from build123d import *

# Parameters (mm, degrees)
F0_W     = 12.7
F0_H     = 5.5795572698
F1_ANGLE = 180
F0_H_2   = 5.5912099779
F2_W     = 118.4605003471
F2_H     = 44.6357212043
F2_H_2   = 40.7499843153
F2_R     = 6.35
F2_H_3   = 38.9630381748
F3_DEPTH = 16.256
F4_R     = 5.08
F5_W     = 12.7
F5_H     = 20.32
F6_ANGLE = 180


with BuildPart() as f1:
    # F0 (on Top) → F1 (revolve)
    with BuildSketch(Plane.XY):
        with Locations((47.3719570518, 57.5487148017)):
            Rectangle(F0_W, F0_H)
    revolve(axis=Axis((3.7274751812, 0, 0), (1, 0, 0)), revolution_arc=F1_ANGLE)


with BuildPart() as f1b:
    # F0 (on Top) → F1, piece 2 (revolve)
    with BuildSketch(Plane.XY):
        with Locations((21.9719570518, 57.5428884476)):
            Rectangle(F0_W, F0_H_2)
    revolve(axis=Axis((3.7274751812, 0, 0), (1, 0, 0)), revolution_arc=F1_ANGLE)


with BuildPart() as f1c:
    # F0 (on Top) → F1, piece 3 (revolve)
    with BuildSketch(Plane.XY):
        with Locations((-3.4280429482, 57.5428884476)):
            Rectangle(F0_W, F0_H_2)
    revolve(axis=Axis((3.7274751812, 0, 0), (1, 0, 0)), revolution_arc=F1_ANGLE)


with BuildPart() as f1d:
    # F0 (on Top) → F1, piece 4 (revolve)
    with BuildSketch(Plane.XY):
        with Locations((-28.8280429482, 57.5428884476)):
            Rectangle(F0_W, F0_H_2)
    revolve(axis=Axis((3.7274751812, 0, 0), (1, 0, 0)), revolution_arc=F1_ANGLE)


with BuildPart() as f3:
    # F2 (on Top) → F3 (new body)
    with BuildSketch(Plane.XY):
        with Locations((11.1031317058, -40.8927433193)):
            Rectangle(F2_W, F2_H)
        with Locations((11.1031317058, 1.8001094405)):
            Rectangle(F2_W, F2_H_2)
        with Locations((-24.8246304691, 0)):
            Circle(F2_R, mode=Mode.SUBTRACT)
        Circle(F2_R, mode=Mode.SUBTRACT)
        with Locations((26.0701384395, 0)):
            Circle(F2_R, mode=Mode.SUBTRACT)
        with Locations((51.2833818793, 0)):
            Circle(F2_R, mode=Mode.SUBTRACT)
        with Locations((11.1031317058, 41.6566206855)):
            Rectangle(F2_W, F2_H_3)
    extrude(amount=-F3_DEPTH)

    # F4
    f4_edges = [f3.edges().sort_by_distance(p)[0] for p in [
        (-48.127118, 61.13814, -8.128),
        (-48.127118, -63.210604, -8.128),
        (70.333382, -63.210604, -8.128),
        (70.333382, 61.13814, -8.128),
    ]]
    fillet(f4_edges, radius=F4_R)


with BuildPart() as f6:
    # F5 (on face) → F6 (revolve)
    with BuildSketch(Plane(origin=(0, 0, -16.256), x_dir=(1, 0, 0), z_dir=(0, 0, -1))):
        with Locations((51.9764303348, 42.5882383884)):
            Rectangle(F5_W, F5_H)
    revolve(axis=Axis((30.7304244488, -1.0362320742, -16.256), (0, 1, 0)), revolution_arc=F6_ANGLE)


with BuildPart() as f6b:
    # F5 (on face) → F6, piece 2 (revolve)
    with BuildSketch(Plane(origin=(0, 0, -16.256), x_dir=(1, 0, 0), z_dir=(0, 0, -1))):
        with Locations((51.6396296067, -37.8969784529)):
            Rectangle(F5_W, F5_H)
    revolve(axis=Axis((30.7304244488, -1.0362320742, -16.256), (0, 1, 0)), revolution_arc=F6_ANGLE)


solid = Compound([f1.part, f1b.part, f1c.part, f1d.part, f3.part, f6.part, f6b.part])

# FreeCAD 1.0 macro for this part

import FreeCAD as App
import Part
import Sketcher
from FreeCAD import Vector
Q = App.Units.Quantity


def edges_at(feature, points):
    """Names of the edges that pass closest to the given points."""
    edges = feature.Shape.Edges
    near = lambda p: min(range(len(edges)), key=lambda i: edges[i].distToShape(Part.Vertex(*p))[0])
    return sorted({f"Edge{near(p) + 1}" for p in points})

doc = App.newDocument("Part")
body = doc.addObject("PartDesign::Body", "Body")

# Sketch on XY plane
sketch1 = body.newObject("Sketcher::SketchObject", "Sketch")
sketch1.AttachmentSupport = (doc.getObject("XY_Plane"), [""])
sketch1.MapMode = "FlatFace"
sketch1.addGeometry([
    Part.LineSegment(Vector(41, 60, 0), Vector(41, 55, 0)),
    Part.LineSegment(Vector(41, 55, 0), Vector(54, 55, 0)),
    Part.LineSegment(Vector(54, 55, 0), Vector(54, 60, 0)),
    Part.LineSegment(Vector(54, 60, 0), Vector(41, 60, 0)),
], False)
sketch1.addConstraint([
    Sketcher.Constraint("Coincident", 0, 2, 1, 1),
    Sketcher.Constraint("Coincident", 1, 2, 2, 1),
    Sketcher.Constraint("Coincident", 2, 2, 3, 1),
    Sketcher.Constraint("Coincident", 3, 2, 0, 1),
    Sketcher.Constraint("Vertical", 0),
    Sketcher.Constraint("Horizontal", 1),
    Sketcher.Constraint("Vertical", 2),
    Sketcher.Constraint("Horizontal", 3),
    Sketcher.Constraint("DistanceX", 1, 1, 1, 2, Q("0.5 in")),
    Sketcher.Constraint("DistanceY", 0, 2, 0, 1, Q("5.579557 mm")),
    Sketcher.Constraint("DistanceX", -1, 1, 0, 2, Q("41.021957 mm")),
    Sketcher.Constraint("DistanceY", -1, 1, 0, 2, Q("54.758936 mm")),
])
revolution = body.newObject("PartDesign::Revolution", "Revolution")
revolution.Profile = sketch1
revolution.ReferenceAxis = (sketch1, ["H_Axis"])
revolution.Angle = 180
body2 = doc.addObject("PartDesign::Body", "Body001")

# Sketch on XY plane
sketch2 = body2.newObject("Sketcher::SketchObject", "Sketch001")
sketch2.AttachmentSupport = (doc.getObject("XY_Plane001"), [""])
sketch2.MapMode = "FlatFace"
sketch2.addGeometry([
    Part.LineSegment(Vector(16, 60, 0), Vector(16, 55, 0)),
    Part.LineSegment(Vector(16, 55, 0), Vector(28, 55, 0)),
    Part.LineSegment(Vector(28, 55, 0), Vector(28, 60, 0)),
    Part.LineSegment(Vector(28, 60, 0), Vector(16, 60, 0)),
], False)
sketch2.addConstraint([
    Sketcher.Constraint("Coincident", 0, 2, 1, 1),
    Sketcher.Constraint("Coincident", 1, 2, 2, 1),
    Sketcher.Constraint("Coincident", 2, 2, 3, 1),
    Sketcher.Constraint("Coincident", 3, 2, 0, 1),
    Sketcher.Constraint("Vertical", 0),
    Sketcher.Constraint("Horizontal", 1),
    Sketcher.Constraint("Vertical", 2),
    Sketcher.Constraint("Horizontal", 3),
    Sketcher.Constraint("DistanceX", 1, 1, 1, 2, Q("0.5 in")),
    Sketcher.Constraint("DistanceY", 0, 2, 0, 1, Q("5.59121 mm")),
    Sketcher.Constraint("DistanceX", -1, 1, 0, 2, Q("15.621957 mm")),
    Sketcher.Constraint("DistanceY", -1, 1, 0, 2, Q("54.747283 mm")),
])
revolution2 = body2.newObject("PartDesign::Revolution", "Revolution001")
revolution2.Profile = sketch2
revolution2.ReferenceAxis = (sketch2, ["H_Axis"])
revolution2.Angle = 180
body3 = doc.addObject("PartDesign::Body", "Body002")

# Sketch on XY plane
sketch3 = body3.newObject("Sketcher::SketchObject", "Sketch002")
sketch3.AttachmentSupport = (doc.getObject("XY_Plane002"), [""])
sketch3.MapMode = "FlatFace"
sketch3.addGeometry([
    Part.LineSegment(Vector(-10, 60, 0), Vector(-10, 55, 0)),
    Part.LineSegment(Vector(-10, 55, 0), Vector(3, 55, 0)),
    Part.LineSegment(Vector(3, 55, 0), Vector(3, 60, 0)),
    Part.LineSegment(Vector(3, 60, 0), Vector(-10, 60, 0)),
], False)
sketch3.addConstraint([
    Sketcher.Constraint("Coincident", 0, 2, 1, 1),
    Sketcher.Constraint("Coincident", 1, 2, 2, 1),
    Sketcher.Constraint("Coincident", 2, 2, 3, 1),
    Sketcher.Constraint("Coincident", 3, 2, 0, 1),
    Sketcher.Constraint("Vertical", 0),
    Sketcher.Constraint("Horizontal", 1),
    Sketcher.Constraint("Vertical", 2),
    Sketcher.Constraint("Horizontal", 3),
    Sketcher.Constraint("DistanceX", 1, 1, 1, 2, Q("0.5 in")),
    Sketcher.Constraint("DistanceY", 0, 2, 0, 1, Q("5.59121 mm")),
    Sketcher.Constraint("DistanceX", 0, 2, -1, 1, Q("9.778043 mm")),
    Sketcher.Constraint("DistanceY", -1, 1, 0, 2, Q("54.747283 mm")),
])
revolution3 = body3.newObject("PartDesign::Revolution", "Revolution002")
revolution3.Profile = sketch3
revolution3.ReferenceAxis = (sketch3, ["H_Axis"])
revolution3.Angle = 180
body4 = doc.addObject("PartDesign::Body", "Body003")

# Sketch on XY plane
sketch4 = body4.newObject("Sketcher::SketchObject", "Sketch003")
sketch4.AttachmentSupport = (doc.getObject("XY_Plane003"), [""])
sketch4.MapMode = "FlatFace"
sketch4.addGeometry([
    Part.LineSegment(Vector(-35, 60, 0), Vector(-35, 55, 0)),
    Part.LineSegment(Vector(-35, 55, 0), Vector(-22, 55, 0)),
    Part.LineSegment(Vector(-22, 55, 0), Vector(-22, 60, 0)),
    Part.LineSegment(Vector(-22, 60, 0), Vector(-35, 60, 0)),
], False)
sketch4.addConstraint([
    Sketcher.Constraint("Coincident", 0, 2, 1, 1),
    Sketcher.Constraint("Coincident", 1, 2, 2, 1),
    Sketcher.Constraint("Coincident", 2, 2, 3, 1),
    Sketcher.Constraint("Coincident", 3, 2, 0, 1),
    Sketcher.Constraint("Vertical", 0),
    Sketcher.Constraint("Horizontal", 1),
    Sketcher.Constraint("Vertical", 2),
    Sketcher.Constraint("Horizontal", 3),
    Sketcher.Constraint("DistanceX", 1, 1, 1, 2, Q("0.5 in")),
    Sketcher.Constraint("DistanceY", 0, 2, 0, 1, Q("5.59121 mm")),
    Sketcher.Constraint("DistanceX", 0, 2, -1, 1, Q("35.178043 mm")),
    Sketcher.Constraint("DistanceY", -1, 1, 0, 2, Q("54.747283 mm")),
])
revolution4 = body4.newObject("PartDesign::Revolution", "Revolution003")
revolution4.Profile = sketch4
revolution4.ReferenceAxis = (sketch4, ["H_Axis"])
revolution4.Angle = 180
body5 = doc.addObject("PartDesign::Body", "Body004")

# Sketch on XY plane
sketch5 = body5.newObject("Sketcher::SketchObject", "Sketch004")
sketch5.AttachmentSupport = (doc.getObject("XY_Plane004"), [""])
sketch5.MapMode = "FlatFace"
sketch5.addGeometry([
    Part.LineSegment(Vector(-48, -63, 0), Vector(70, -63, 0)),  # 0
    Part.LineSegment(Vector(70, -63, 0), Vector(70, 61, 0)),  # 1
    Part.LineSegment(Vector(70, 61, 0), Vector(-48, 61, 0)),  # 2
    Part.LineSegment(Vector(-48, 61, 0), Vector(-48, -63, 0)),  # 3
    Part.Circle(Vector(-25, 0, 0), Vector(0, 0, 1), 6),  # 4
    Part.Circle(Vector(0, 0, 0), Vector(0, 0, 1), 6),  # 5
    Part.Circle(Vector(26, 0, 0), Vector(0, 0, 1), 6),  # 6
    Part.Circle(Vector(51, 0, 0), Vector(0, 0, 1), 6),  # 7
], False)
sketch5.addConstraint([
    Sketcher.Constraint("Coincident", 0, 2, 1, 1),
    Sketcher.Constraint("Coincident", 1, 2, 2, 1),
    Sketcher.Constraint("Coincident", 2, 2, 3, 1),
    Sketcher.Constraint("Coincident", 3, 2, 0, 1),
    Sketcher.Constraint("Horizontal", 0),
    Sketcher.Constraint("Vertical", 1),
    Sketcher.Constraint("Horizontal", 2),
    Sketcher.Constraint("Vertical", 3),
    Sketcher.Constraint("Coincident", 5, 3, -1, 1),
    Sketcher.Constraint("Equal", 4, 5),
    Sketcher.Constraint("Equal", 5, 6),
    Sketcher.Constraint("Equal", 6, 7),
    Sketcher.Constraint("PointOnObject", 4, 3, -1),
    Sketcher.Constraint("PointOnObject", 6, 3, -1),
    Sketcher.Constraint("PointOnObject", 7, 3, -1),
    Sketcher.Constraint("Diameter", 4, Q("0.5 in")),
    Sketcher.Constraint("DistanceX", 7, 3, 0, 2, Q("0.75 in")),
    Sketcher.Constraint("DistanceX", 0, 1, 0, 2, Q("118.4605 mm")),
    Sketcher.Constraint("DistanceY", 1, 1, 1, 2, Q("124.348744 mm")),
    Sketcher.Constraint("DistanceX", 4, 3, -1, 1, Q("24.82463 mm")),
    Sketcher.Constraint("DistanceX", -1, 1, 6, 3, Q("26.070138 mm")),
    Sketcher.Constraint("DistanceX", -1, 1, 7, 3, Q("51.283382 mm")),
    Sketcher.Constraint("DistanceY", -1, 1, 1, 2, Q("61.13814 mm")),
])
pad1 = body5.newObject("PartDesign::Pad", "Pad")
pad1.Profile = sketch5
pad1.Length = Q("0.64 in")
pad1.Reversed = True
doc.recompute()

fillet = body5.newObject("PartDesign::Fillet", "Fillet")
fillet.Base = (pad1, edges_at(pad1, [
    (-48.127, 61.138, -8.128),
    (-48.127, -63.211, -8.128),
    (70.333, -63.211, -8.128),
    (70.333, 61.138, -8.128),
]))
fillet.Radius = Q("0.2 in")
body6 = doc.addObject("PartDesign::Body", "Body005")

# Sketch on XY plane
sketch6 = body6.newObject("Sketcher::SketchObject", "Sketch005")
sketch6.AttachmentSupport = (doc.getObject("XY_Plane005"), [""])
sketch6.MapMode = "FlatFace"
sketch6.AttachmentOffset = App.Placement(Vector(0, 0, -0.64 * 25.4), App.Rotation())
sketch6.addGeometry([
    Part.LineSegment(Vector(46, -53, 0), Vector(46, -32, 0)),
    Part.LineSegment(Vector(46, -32, 0), Vector(58, -32, 0)),
    Part.LineSegment(Vector(58, -32, 0), Vector(58, -53, 0)),
    Part.LineSegment(Vector(58, -53, 0), Vector(46, -53, 0)),
], False)
sketch6.addGeometry(Part.LineSegment(Vector(31, -53, 0), Vector(31, -32, 0)), True)  # axis
sketch6.addConstraint([
    Sketcher.Constraint("Coincident", 0, 2, 1, 1),
    Sketcher.Constraint("Coincident", 1, 2, 2, 1),
    Sketcher.Constraint("Coincident", 2, 2, 3, 1),
    Sketcher.Constraint("Coincident", 3, 2, 0, 1),
    Sketcher.Constraint("Vertical", 0),
    Sketcher.Constraint("Horizontal", 1),
    Sketcher.Constraint("Vertical", 2),
    Sketcher.Constraint("Horizontal", 3),
    Sketcher.Constraint("Vertical", 4),
    Sketcher.Constraint("Horizontal", 3, 2, 4, 1),
    Sketcher.Constraint("Horizontal", 1, 2, 4, 2),
    Sketcher.Constraint("DistanceX", 1, 1, 1, 2, Q("0.5 in")),
    Sketcher.Constraint("DistanceY", 0, 1, 0, 2, Q("0.8 in")),
    Sketcher.Constraint("DistanceX", -1, 1, 0, 2, Q("45.62643 mm")),
    Sketcher.Constraint("DistanceY", 0, 2, -1, 1, Q("32.428238 mm")),
    Sketcher.Constraint("DistanceX", -1, 1, 4, 1, Q("30.730424 mm")),
])
revolution5 = body6.newObject("PartDesign::Revolution", "Revolution004")
revolution5.Profile = sketch6
revolution5.ReferenceAxis = (sketch6, ["Axis0"])
revolution5.Angle = 180
body7 = doc.addObject("PartDesign::Body", "Body006")

# Sketch on XY plane
sketch7 = body7.newObject("Sketcher::SketchObject", "Sketch006")
sketch7.AttachmentSupport = (doc.getObject("XY_Plane006"), [""])
sketch7.MapMode = "FlatFace"
sketch7.AttachmentOffset = App.Placement(Vector(0, 0, -0.64 * 25.4), App.Rotation())
sketch7.addGeometry([
    Part.LineSegment(Vector(45, 28, 0), Vector(45, 48, 0)),
    Part.LineSegment(Vector(45, 48, 0), Vector(58, 48, 0)),
    Part.LineSegment(Vector(58, 48, 0), Vector(58, 28, 0)),
    Part.LineSegment(Vector(58, 28, 0), Vector(45, 28, 0)),
], False)
sketch7.addGeometry(Part.LineSegment(Vector(31, 28, 0), Vector(31, 48, 0)), True)  # axis
sketch7.addConstraint([
    Sketcher.Constraint("Coincident", 0, 2, 1, 1),
    Sketcher.Constraint("Coincident", 1, 2, 2, 1),
    Sketcher.Constraint("Coincident", 2, 2, 3, 1),
    Sketcher.Constraint("Coincident", 3, 2, 0, 1),
    Sketcher.Constraint("Vertical", 0),
    Sketcher.Constraint("Horizontal", 1),
    Sketcher.Constraint("Vertical", 2),
    Sketcher.Constraint("Horizontal", 3),
    Sketcher.Constraint("Vertical", 4),
    Sketcher.Constraint("Horizontal", 3, 2, 4, 1),
    Sketcher.Constraint("Horizontal", 1, 2, 4, 2),
    Sketcher.Constraint("DistanceX", 1, 1, 1, 2, Q("0.5 in")),
    Sketcher.Constraint("DistanceY", 0, 1, 0, 2, Q("0.8 in")),
    Sketcher.Constraint("DistanceX", -1, 1, 0, 2, Q("45.28963 mm")),
    Sketcher.Constraint("DistanceY", -1, 1, 0, 2, Q("48.056978 mm")),
    Sketcher.Constraint("DistanceX", -1, 1, 4, 1, Q("30.730424 mm")),
])
revolution6 = body7.newObject("PartDesign::Revolution", "Revolution005")
revolution6.Profile = sketch7
revolution6.ReferenceAxis = (sketch7, ["Axis0"])
revolution6.Angle = 180

doc.recompute()
